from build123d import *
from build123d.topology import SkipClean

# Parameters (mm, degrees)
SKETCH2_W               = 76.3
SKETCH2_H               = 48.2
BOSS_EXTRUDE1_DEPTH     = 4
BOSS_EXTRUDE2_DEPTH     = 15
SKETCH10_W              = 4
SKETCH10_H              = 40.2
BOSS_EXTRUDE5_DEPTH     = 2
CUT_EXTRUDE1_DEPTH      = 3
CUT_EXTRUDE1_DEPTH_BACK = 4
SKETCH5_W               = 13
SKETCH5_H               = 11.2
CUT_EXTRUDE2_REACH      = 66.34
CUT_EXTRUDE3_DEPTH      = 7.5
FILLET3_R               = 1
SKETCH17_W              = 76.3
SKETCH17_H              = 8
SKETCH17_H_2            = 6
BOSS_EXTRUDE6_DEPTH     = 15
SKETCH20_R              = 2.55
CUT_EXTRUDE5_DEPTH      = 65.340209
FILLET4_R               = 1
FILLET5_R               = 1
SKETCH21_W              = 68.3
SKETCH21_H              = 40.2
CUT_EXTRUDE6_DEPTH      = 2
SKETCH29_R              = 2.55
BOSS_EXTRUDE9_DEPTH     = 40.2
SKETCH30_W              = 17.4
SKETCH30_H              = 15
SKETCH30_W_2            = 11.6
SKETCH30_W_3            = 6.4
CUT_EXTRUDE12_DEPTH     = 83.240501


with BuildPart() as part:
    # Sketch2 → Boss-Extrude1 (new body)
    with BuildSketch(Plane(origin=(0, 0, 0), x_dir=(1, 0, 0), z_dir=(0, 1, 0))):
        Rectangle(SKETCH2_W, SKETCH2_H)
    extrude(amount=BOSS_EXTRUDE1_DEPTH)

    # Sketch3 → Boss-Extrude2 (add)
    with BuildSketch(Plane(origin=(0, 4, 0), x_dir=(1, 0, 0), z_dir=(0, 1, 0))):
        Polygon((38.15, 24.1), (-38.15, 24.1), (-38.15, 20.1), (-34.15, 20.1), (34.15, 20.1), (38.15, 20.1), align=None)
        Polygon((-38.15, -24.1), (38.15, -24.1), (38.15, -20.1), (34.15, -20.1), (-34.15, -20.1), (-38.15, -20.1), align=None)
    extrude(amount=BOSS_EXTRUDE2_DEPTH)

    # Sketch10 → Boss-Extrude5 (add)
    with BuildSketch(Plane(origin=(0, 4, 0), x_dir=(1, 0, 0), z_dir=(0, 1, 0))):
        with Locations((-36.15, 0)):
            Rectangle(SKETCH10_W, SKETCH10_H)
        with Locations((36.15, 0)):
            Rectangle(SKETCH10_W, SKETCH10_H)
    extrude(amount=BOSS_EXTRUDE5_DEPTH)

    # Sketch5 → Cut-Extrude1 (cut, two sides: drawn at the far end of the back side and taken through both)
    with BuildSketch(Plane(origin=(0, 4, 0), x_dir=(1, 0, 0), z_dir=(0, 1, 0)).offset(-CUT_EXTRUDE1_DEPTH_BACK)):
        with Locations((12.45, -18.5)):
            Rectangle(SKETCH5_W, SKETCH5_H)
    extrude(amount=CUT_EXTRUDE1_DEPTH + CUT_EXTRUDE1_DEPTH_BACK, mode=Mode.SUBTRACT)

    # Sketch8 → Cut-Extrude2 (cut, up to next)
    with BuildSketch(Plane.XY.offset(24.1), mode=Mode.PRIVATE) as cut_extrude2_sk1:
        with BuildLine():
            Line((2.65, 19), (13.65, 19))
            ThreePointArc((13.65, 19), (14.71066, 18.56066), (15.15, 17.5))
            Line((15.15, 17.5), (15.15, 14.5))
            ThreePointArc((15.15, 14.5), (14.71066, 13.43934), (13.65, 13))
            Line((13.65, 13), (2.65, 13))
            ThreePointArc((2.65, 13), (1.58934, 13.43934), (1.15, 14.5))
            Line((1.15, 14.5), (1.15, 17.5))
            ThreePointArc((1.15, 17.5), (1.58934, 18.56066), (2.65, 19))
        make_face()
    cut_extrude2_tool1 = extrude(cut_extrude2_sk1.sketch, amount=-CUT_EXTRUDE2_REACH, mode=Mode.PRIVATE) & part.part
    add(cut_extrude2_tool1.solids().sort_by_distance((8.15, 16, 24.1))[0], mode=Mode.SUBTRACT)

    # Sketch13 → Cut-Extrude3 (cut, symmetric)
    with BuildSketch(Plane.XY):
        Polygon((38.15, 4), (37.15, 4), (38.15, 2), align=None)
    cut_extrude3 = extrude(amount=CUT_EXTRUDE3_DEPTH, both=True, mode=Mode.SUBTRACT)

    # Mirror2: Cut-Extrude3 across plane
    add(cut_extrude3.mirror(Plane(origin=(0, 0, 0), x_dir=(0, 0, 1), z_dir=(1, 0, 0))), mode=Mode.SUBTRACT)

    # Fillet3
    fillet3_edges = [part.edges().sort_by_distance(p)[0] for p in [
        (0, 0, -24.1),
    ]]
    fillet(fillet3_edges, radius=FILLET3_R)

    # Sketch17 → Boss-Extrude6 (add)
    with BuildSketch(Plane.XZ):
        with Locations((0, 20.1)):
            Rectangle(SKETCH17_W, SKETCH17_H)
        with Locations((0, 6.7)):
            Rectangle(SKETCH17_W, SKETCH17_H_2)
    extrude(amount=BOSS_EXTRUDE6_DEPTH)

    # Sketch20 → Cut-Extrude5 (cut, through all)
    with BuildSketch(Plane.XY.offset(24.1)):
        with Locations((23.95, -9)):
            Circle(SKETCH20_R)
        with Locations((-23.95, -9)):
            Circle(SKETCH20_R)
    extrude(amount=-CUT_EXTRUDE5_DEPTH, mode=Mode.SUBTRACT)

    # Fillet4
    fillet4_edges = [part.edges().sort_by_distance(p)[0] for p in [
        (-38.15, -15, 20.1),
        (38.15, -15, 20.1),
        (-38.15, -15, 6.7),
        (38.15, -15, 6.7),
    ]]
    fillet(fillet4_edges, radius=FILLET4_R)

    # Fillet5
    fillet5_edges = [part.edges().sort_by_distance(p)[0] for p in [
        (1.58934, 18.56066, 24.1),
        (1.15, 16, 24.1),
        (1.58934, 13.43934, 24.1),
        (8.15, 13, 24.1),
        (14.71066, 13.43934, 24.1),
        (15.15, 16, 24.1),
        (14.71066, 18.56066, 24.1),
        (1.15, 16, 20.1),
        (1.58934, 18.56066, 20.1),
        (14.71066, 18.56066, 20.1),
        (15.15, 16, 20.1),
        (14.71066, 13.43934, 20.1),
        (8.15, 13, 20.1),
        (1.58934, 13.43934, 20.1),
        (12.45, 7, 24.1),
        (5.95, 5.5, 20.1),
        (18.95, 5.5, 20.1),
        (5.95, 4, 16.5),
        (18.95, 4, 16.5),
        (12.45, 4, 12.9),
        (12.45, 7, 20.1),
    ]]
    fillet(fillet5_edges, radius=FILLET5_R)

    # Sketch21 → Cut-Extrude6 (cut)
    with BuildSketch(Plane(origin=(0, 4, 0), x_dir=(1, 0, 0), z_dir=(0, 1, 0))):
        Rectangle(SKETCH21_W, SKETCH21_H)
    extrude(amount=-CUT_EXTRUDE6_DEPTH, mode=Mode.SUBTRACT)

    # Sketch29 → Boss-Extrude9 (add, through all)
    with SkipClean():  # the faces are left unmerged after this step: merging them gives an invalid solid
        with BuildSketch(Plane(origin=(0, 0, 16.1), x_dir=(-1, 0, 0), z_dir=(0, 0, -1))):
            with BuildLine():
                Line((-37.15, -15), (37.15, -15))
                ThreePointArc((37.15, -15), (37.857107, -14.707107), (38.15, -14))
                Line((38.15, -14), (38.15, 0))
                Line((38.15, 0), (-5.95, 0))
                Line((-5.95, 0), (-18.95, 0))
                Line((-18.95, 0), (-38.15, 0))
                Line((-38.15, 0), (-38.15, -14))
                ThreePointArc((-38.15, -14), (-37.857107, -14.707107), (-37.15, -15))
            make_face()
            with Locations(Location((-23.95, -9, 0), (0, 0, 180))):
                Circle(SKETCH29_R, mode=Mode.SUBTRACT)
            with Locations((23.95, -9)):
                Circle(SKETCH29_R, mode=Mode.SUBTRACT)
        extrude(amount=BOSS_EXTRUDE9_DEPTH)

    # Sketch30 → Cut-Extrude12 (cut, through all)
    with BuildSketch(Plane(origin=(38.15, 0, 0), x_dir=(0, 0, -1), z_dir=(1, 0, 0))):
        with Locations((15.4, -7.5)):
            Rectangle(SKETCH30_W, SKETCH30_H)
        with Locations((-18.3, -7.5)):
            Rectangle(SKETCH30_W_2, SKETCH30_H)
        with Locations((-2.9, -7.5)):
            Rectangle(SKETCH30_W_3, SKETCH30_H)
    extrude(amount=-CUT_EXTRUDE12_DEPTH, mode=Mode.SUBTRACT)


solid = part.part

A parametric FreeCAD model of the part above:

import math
import FreeCAD as App
import Part
import Sketcher


def edges_at(feature, points):
    """Names of the edges that pass closest to the given points."""
    edges = feature.Shape.Edges
    near = lambda p: min(range(len(edges)), key=lambda i: edges[i].distToShape(Part.Vertex(*p))[0])
    return sorted({f"Edge{near(p) + 1}" for p in points})

doc = App.newDocument("Part")
body = doc.addObject("PartDesign::Body", "Body")

sketch1 = body.newObject("Sketcher::SketchObject", "Sketch")
sketch1.AttachmentSupport = (doc.getObject("XZ_Plane"), [""])
sketch1.MapMode = "FlatFace"
sketch1.addGeometry([
    Part.LineSegment(App.Vector(-38, -24, 0), App.Vector(-38, 24, 0)),
    Part.LineSegment(App.Vector(-38, 24, 0), App.Vector(38, 24, 0)),
    Part.LineSegment(App.Vector(38, 24, 0), App.Vector(38, -24, 0)),
    Part.LineSegment(App.Vector(38, -24, 0), App.Vector(-38, -24, 0)),
], False)
sketch1.addConstraint([
    Sketcher.Constraint("Coincident", 0, 2, 1, 1),
    Sketcher.Constraint("Coincident", 1, 2, 2, 1),
    Sketcher.Constraint("Coincident", 2, 2, 3, 1),
    Sketcher.Constraint("Coincident", 3, 2, 0, 1),
    Sketcher.Constraint("Vertical", 0),
    Sketcher.Constraint("Horizontal", 1),
    Sketcher.Constraint("Vertical", 2),
    Sketcher.Constraint("Horizontal", 3),
    Sketcher.Constraint("Symmetric", 0, 2, 2, 2, -1, 1),
    Sketcher.Constraint("DistanceX", 1, 1, 1, 2, 76.3),
    Sketcher.Constraint("DistanceY", 0, 1, 0, 2, 48.2),
])
pad1 = body.newObject("PartDesign::Pad", "Pad")
pad1.Profile = sketch1
pad1.Length = 4
pad1.Reversed = True

sketch2 = body.newObject("Sketcher::SketchObject", "Sketch001")
sketch2.AttachmentSupport = (doc.getObject("XZ_Plane"), [""])
sketch2.MapMode = "FlatFace"
sketch2.AttachmentOffset = App.Placement(App.Vector(0, 0, -4), App.Rotation())
sketch2.addGeometry([
    Part.LineSegment(App.Vector(38.1, -24.1, 0), App.Vector(-38.1, -24.1, 0)),
    Part.LineSegment(App.Vector(-38.1, -24.1, 0), App.Vector(-38.1, -20.1, 0)),
    Part.LineSegment(App.Vector(-38.1, -20.1, 0), App.Vector(38.1, -20.1, 0)),
    Part.LineSegment(App.Vector(38.1, -20.1, 0), App.Vector(38.1, -24.1, 0)),
    Part.LineSegment(App.Vector(-38.1, 24.1, 0), App.Vector(38.1, 24.1, 0)),
    Part.LineSegment(App.Vector(38.1, 24.1, 0), App.Vector(38.1, 20.1, 0)),
    Part.LineSegment(App.Vector(38.1, 20.1, 0), App.Vector(-38.1, 20.1, 0)),
    Part.LineSegment(App.Vector(-38.1, 20.1, 0), App.Vector(-38.1, 24.1, 0)),
], False)
sketch2.addConstraint([
    Sketcher.Constraint("Coincident", 0, 2, 1, 1),
    Sketcher.Constraint("Coincident", 1, 2, 2, 1),
    Sketcher.Constraint("Coincident", 2, 2, 3, 1),
    Sketcher.Constraint("Coincident", 3, 2, 0, 1),
    Sketcher.Constraint("Coincident", 4, 2, 5, 1),
    Sketcher.Constraint("Coincident", 5, 2, 6, 1),
    Sketcher.Constraint("Coincident", 6, 2, 7, 1),
    Sketcher.Constraint("Coincident", 7, 2, 4, 1),
    Sketcher.Constraint("Horizontal", 0),
    Sketcher.Constraint("Vertical", 1),
    Sketcher.Constraint("Horizontal", 2),
    Sketcher.Constraint("Vertical", 3),
    Sketcher.Constraint("Horizontal", 4),
    Sketcher.Constraint("Vertical", 5),
    Sketcher.Constraint("Horizontal", 6),
    Sketcher.Constraint("Vertical", 7),
    Sketcher.Constraint("Symmetric", 0, 2, 4, 2, -1, 1),
    Sketcher.Constraint("Symmetric", 2, 2, 6, 2, -1, 1),
    Sketcher.Constraint("Vertical", 3, 2, 4, 2),
    Sketcher.Constraint("DistanceY", 1, 1, 1, 2, 4.0),
    Sketcher.Constraint("DistanceX", 0, 2, 0, 1, 76.3),
    Sketcher.Constraint("DistanceY", 0, 2, -1, 1, 24.1),
])
pad2 = body.newObject("PartDesign::Pad", "Pad001")
pad2.Profile = sketch2
pad2.Length = 15
pad2.Reversed = True

sketch3 = body.newObject("Sketcher::SketchObject", "Sketch002")
sketch3.AttachmentSupport = (doc.getObject("XZ_Plane"), [""])
sketch3.MapMode = "FlatFace"
sketch3.AttachmentOffset = App.Placement(App.Vector(0, 0, -4), App.Rotation())
sketch3.addGeometry([
    Part.LineSegment(App.Vector(-38.1, -20.1, 0), App.Vector(-38.1, 20.1, 0)),
    Part.LineSegment(App.Vector(-38.1, 20.1, 0), App.Vector(-34.1, 20.1, 0)),
    Part.LineSegment(App.Vector(-34.1, 20.1, 0), App.Vector(-34.1, -20.1, 0)),
    Part.LineSegment(App.Vector(-34.1, -20.1, 0), App.Vector(-38.1, -20.1, 0)),
    Part.LineSegment(App.Vector(34.1, -20.1, 0), App.Vector(34.1, 20.1, 0)),
    Part.LineSegment(App.Vector(34.1, 20.1, 0), App.Vector(38.1, 20.1, 0)),
    Part.LineSegment(App.Vector(38.1, 20.1, 0), App.Vector(38.1, -20.1, 0)),
    Part.LineSegment(App.Vector(38.1, -20.1, 0), App.Vector(34.1, -20.1, 0)),
], False)
sketch3.addConstraint([
    Sketcher.Constraint("Coincident", 0, 2, 1, 1),
    Sketcher.Constraint("Coincident", 1, 2, 2, 1),
    Sketcher.Constraint("Coincident", 2, 2, 3, 1),
    Sketcher.Constraint("Coincident", 3, 2, 0, 1),
    Sketcher.Constraint("Coincident", 4, 2, 5, 1),
    Sketcher.Constraint("Coincident", 5, 2, 6, 1),
    Sketcher.Constraint("Coincident", 6, 2, 7, 1),
    Sketcher.Constraint("Coincident", 7, 2, 4, 1),
    Sketcher.Constraint("Vertical", 0),
    Sketcher.Constraint("Horizontal", 1),
    Sketcher.Constraint("Vertical", 2),
    Sketcher.Constraint("Horizontal", 3),
    Sketcher.Constraint("Vertical", 4),
    Sketcher.Constraint("Horizontal", 5),
    Sketcher.Constraint("Vertical", 6),
    Sketcher.Constraint("Horizontal", 7),
    Sketcher.Constraint("Symmetric", 2, 2, 4, 2, -1, 1),
    Sketcher.Constraint("Symmetric", 0, 2, 6, 2, -1, 1),
    Sketcher.Constraint("Horizontal", 1, 2, 4, 2),
    Sketcher.Constraint("DistanceX", 1, 1, 1, 2, 4.0),
    Sketcher.Constraint("DistanceY", 0, 1, 0, 2, 40.2),
    Sketcher.Constraint("DistanceX", 1, 2, 4, 2, 68.3),
])
pad3 = body.newObject("PartDesign::Pad", "Pad002")
pad3.Profile = sketch3
pad3.Length = 2
pad3.Reversed = True

sketch4 = body.newObject("Sketcher::SketchObject", "Sketch003")
sketch4.AttachmentSupport = (doc.getObject("XZ_Plane"), [""])
sketch4.MapMode = "FlatFace"
sketch4.AttachmentOffset = App.Placement(App.Vector(0, 0, -4), App.Rotation())
sketch4.addGeometry([
    Part.LineSegment(App.Vector(6, 13, 0), App.Vector(6, 24, 0)),
    Part.LineSegment(App.Vector(6, 24, 0), App.Vector(19, 24, 0)),
    Part.LineSegment(App.Vector(19, 24, 0), App.Vector(19, 13, 0)),
    Part.LineSegment(App.Vector(19, 13, 0), App.Vector(6, 13, 0)),
], False)
sketch4.addConstraint([
    Sketcher.Constraint("Coincident", 0, 2, 1, 1),
    Sketcher.Constraint("Coincident", 1, 2, 2, 1),
    Sketcher.Constraint("Coincident", 2, 2, 3, 1),
    Sketcher.Constraint("Coincident", 3, 2, 0, 1),
    Sketcher.Constraint("Vertical", 0),
    Sketcher.Constraint("Horizontal", 1),
    Sketcher.Constraint("Vertical", 2),
    Sketcher.Constraint("Horizontal", 3),
    Sketcher.Constraint("DistanceX", 1, 1, 1, 2, 13.0),
    Sketcher.Constraint("DistanceY", 0, 1, 0, 2, 11.2),
    Sketcher.Constraint("DistanceY", -1, 1, 0, 2, 24.1),
    Sketcher.Constraint("DistanceX", -1, 1, 0, 2, 5.95),
])
pocket1 = body.newObject("PartDesign::Pocket", "Pocket")
pocket1.Profile = sketch4
pocket1.Type = "TwoLengths"
pocket1.Length = 3
pocket1.Length2 = 4

sketch5 = body.newObject("Sketcher::SketchObject", "Sketch004")
sketch5.AttachmentSupport = (doc.getObject("XY_Plane"), [""])
sketch5.MapMode = "FlatFace"
sketch5.AttachmentOffset = App.Placement(App.Vector(0, 0, 24.1), App.Rotation())
sketch5.addGeometry([
    Part.LineSegment(App.Vector(13.7, 19, 0), App.Vector(2.6, 19, 0)),
    Part.ArcOfCircle(Part.Circle(App.Vector(2.7, 17.5, 0), App.Vector(0, 0, 1), 1.5), math.radians(90), math.radians(180)),
    Part.LineSegment(App.Vector(1.1, 17.5, 0), App.Vector(1.1, 14.5, 0)),
    Part.ArcOfCircle(Part.Circle(App.Vector(2.7, 14.5, 0), App.Vector(0, 0, 1), 1.5), math.radians(-180), math.radians(-90)),
    Part.LineSegment(App.Vector(2.6, 13, 0), App.Vector(13.7, 13, 0)),
    Part.ArcOfCircle(Part.Circle(App.Vector(13.6, 14.5, 0), App.Vector(0, 0, 1), 1.5), math.radians(-90), math.radians(0)),
    Part.LineSegment(App.Vector(15.2, 14.5, 0), App.Vector(15.2, 17.5, 0)),
    Part.ArcOfCircle(Part.Circle(App.Vector(13.6, 17.5, 0), App.Vector(0, 0, 1), 1.5), math.radians(0), math.radians(90)),
], False)
sketch5.addConstraint([
    Sketcher.Constraint("Tangent", 0, 2, 1, 1),
    Sketcher.Constraint("Tangent", 1, 2, 2, 1),
    Sketcher.Constraint("Tangent", 2, 2, 3, 1),
    Sketcher.Constraint("Tangent", 3, 2, 4, 1),
    Sketcher.Constraint("Tangent", 4, 2, 5, 1),
    Sketcher.Constraint("Tangent", 5, 2, 6, 1),
    Sketcher.Constraint("Tangent", 6, 2, 7, 1),
    Sketcher.Constraint("Tangent", 7, 2, 0, 1),
    Sketcher.Constraint("Horizontal", 0),
    Sketcher.Constraint("Vertical", 2),
    Sketcher.Constraint("Horizontal", 4),
    Sketcher.Constraint("Vertical", 6),
    Sketcher.Constraint("Equal", 1, 3),
    Sketcher.Constraint("Equal", 3, 5),
    Sketcher.Constraint("Equal", 5, 7),
    Sketcher.Constraint("Radius", 1, 1.500001),
    Sketcher.Constraint("DistanceX", 0, 2, 0, 1, 11.0),
    Sketcher.Constraint("DistanceY", 2, 2, 2, 1, 3.0),
    Sketcher.Constraint("DistanceY", -1, 1, 0, 2, 19.0),
    Sketcher.Constraint("DistanceX", -1, 1, 1, 3, 2.650001),
])
pocket2 = body.newObject("PartDesign::Pocket", "Pocket001")
pocket2.Profile = sketch5
pocket2.Type = "UpToFirst"

sketch6 = body.newObject("Sketcher::SketchObject", "Sketch005")
sketch6.AttachmentSupport = (doc.getObject("XY_Plane"), [""])
sketch6.MapMode = "FlatFace"
sketch6.addGeometry([
    Part.LineSegment(App.Vector(38.1, 4, 0), App.Vector(37.1, 4, 0)),
    Part.LineSegment(App.Vector(37.1, 4, 0), App.Vector(38.1, 2, 0)),
    Part.LineSegment(App.Vector(38.1, 2, 0), App.Vector(38.1, 4, 0)),
], False)
sketch6.addConstraint([
    Sketcher.Constraint("Coincident", 0, 2, 1, 1),
    Sketcher.Constraint("Coincident", 1, 2, 2, 1),
    Sketcher.Constraint("Coincident", 2, 2, 0, 1),
    Sketcher.Constraint("Horizontal", 0),
    Sketcher.Constraint("Vertical", 2),
    Sketcher.Constraint("DistanceX", 0, 2, 0, 1, 1.0),
    Sketcher.Constraint("DistanceY", 2, 1, 2, 2, 2.0),
    Sketcher.Constraint("DistanceY", -1, 1, 0, 2, 4.0),
    Sketcher.Constraint("DistanceX", -1, 1, 0, 2, 37.15),
])
pocket3 = body.newObject("PartDesign::Pocket", "Pocket002")
pocket3.Profile = sketch6
pocket3.Length = 15
pocket3.Midplane = True
doc.recompute()

mirrored = body.newObject("PartDesign::Mirrored", "Mirrored")
mirrored.Originals = [pocket3]
mirrored.MirrorPlane = (doc.getObject("YZ_Plane"), [""])
body.Tip = mirrored
doc.recompute()

fillet = body.newObject("PartDesign::Fillet", "Fillet")
fillet.Base = (mirrored, edges_at(mirrored, [(0, 0, -24.1)]))
fillet.Radius = 1

sketch7 = body.newObject("Sketcher::SketchObject", "Sketch006")
sketch7.AttachmentSupport = (doc.getObject("XZ_Plane"), [""])
sketch7.MapMode = "FlatFace"
sketch7.addGeometry([
    Part.LineSegment(App.Vector(-38, 24, 0), App.Vector(-38, 16, 0)),
    Part.LineSegment(App.Vector(-38, 16, 0), App.Vector(38, 16, 0)),
    Part.LineSegment(App.Vector(38, 16, 0), App.Vector(38, 24, 0)),
    Part.LineSegment(App.Vector(38, 24, 0), App.Vector(-38, 24, 0)),
    Part.LineSegment(App.Vector(-38, 10, 0), App.Vector(-38, 4, 0)),
    Part.LineSegment(App.Vector(-38, 4, 0), App.Vector(38, 4, 0)),
    Part.LineSegment(App.Vector(38, 4, 0), App.Vector(38, 10, 0)),
    Part.LineSegment(App.Vector(38, 10, 0), App.Vector(-38, 10, 0)),
], False)
sketch7.addConstraint([
    Sketcher.Constraint("Coincident", 0, 2, 1, 1),
    Sketcher.Constraint("Coincident", 1, 2, 2, 1),
    Sketcher.Constraint("Coincident", 2, 2, 3, 1),
    Sketcher.Constraint("Coincident", 3, 2, 0, 1),
    Sketcher.Constraint("Coincident", 4, 2, 5, 1),
    Sketcher.Constraint("Coincident", 5, 2, 6, 1),
    Sketcher.Constraint("Coincident", 6, 2, 7, 1),
    Sketcher.Constraint("Coincident", 7, 2, 4, 1),
    Sketcher.Constraint("Vertical", 0),
    Sketcher.Constraint("Horizontal", 1),
    Sketcher.Constraint("Vertical", 2),
    Sketcher.Constraint("Horizontal", 3),
    Sketcher.Constraint("Vertical", 4),
    Sketcher.Constraint("Horizontal", 5),
    Sketcher.Constraint("Vertical", 6),
    Sketcher.Constraint("Horizontal", 7),
    Sketcher.Constraint("Vertical", 3, 2, 4, 2),
    Sketcher.Constraint("Vertical", 2, 2, 5, 2),
    Sketcher.Constraint("DistanceY", 0, 2, 0, 1, 8.0),
    Sketcher.Constraint("DistanceY", 4, 2, 4, 1, 6.0),
    Sketcher.Constraint("DistanceX", 1, 1, 1, 2, 76.3),
    Sketcher.Constraint("DistanceY", -1, 1, 0, 2, 16.1),
    Sketcher.Constraint("DistanceY", -1, 1, 4, 2, 3.7),
    Sketcher.Constraint("DistanceX", 0, 2, -1, 1, 38.15),
])
pad4 = body.newObject("PartDesign::Pad", "Pad003")
pad4.Profile = sketch7
pad4.Length = 15

sketch8 = body.newObject("Sketcher::SketchObject", "Sketch007")
sketch8.AttachmentSupport = (doc.getObject("XY_Plane"), [""])
sketch8.MapMode = "FlatFace"
sketch8.AttachmentOffset = App.Placement(App.Vector(0, 0, 24.1), App.Rotation())
sketch8.addGeometry([
    Part.Circle(App.Vector(23.9, -9, 0), App.Vector(0, 0, 1), 2.5),
    Part.Circle(App.Vector(-23.9, -9, 0), App.Vector(0, 0, 1), 2.5),
], False)
sketch8.addConstraint([
    Sketcher.Constraint("Equal", 0, 1),
    Sketcher.Constraint("Symmetric", 0, 3, 1, 3, -2),
    Sketcher.Constraint("Diameter", 0, 5.1),
    Sketcher.Constraint("DistanceY", 0, 3, -1, 1, 9.0),
    Sketcher.Constraint("DistanceX", 1, 3, 0, 3, 47.9),
])
pocket4 = body.newObject("PartDesign::Pocket", "Pocket003")
pocket4.Profile = sketch8
pocket4.Type = "ThroughAll"
doc.recompute()

fillet2 = body.newObject("PartDesign::Fillet", "Fillet001")
fillet2.Base = (pocket4, edges_at(pocket4, [
    (-38.15, -15, 20.1),
    (38.15, -15, 20.1),
    (-38.15, -15, 6.7),
    (38.15, -15, 6.7),
]))
fillet2.Radius = 1
doc.recompute()

fillet3 = body.newObject("PartDesign::Fillet", "Fillet002")
fillet3.Base = (fillet2, edges_at(fillet2, [
    (1.589, 18.561, 24.1),
    (1.15, 16, 24.1),
    (1.589, 13.439, 24.1),
    (8.15, 13, 24.1),
    (14.711, 13.439, 24.1),
    (15.15, 16, 24.1),
    (14.711, 18.561, 24.1),
    (1.15, 16, 20.1),
    (1.589, 18.561, 20.1),
    (14.711, 18.561, 20.1),
    (15.15, 16, 20.1),
    (14.711, 13.439, 20.1),
    (8.15, 13, 20.1),
    (1.589, 13.439, 20.1),
    (12.45, 7, 24.1),
    (5.95, 5.5, 20.1),
    (18.95, 5.5, 20.1),
    (5.95, 4, 16.5),
    (18.95, 4, 16.5),
    (12.45, 4, 12.9),
    (12.45, 7, 20.1),
]))
fillet3.Radius = 1

sketch9 = body.newObject("Sketcher::SketchObject", "Sketch008")
sketch9.AttachmentSupport = (doc.getObject("XZ_Plane"), [""])
sketch9.MapMode = "FlatFace"
sketch9.AttachmentOffset = App.Placement(App.Vector(0, 0, -4), App.Rotation())
sketch9.addGeometry([
    Part.LineSegment(App.Vector(-34, -20, 0), App.Vector(-34, 20, 0)),
    Part.LineSegment(App.Vector(-34, 20, 0), App.Vector(34, 20, 0)),
    Part.LineSegment(App.Vector(34, 20, 0), App.Vector(34, -20, 0)),
    Part.LineSegment(App.Vector(34, -20, 0), App.Vector(-34, -20, 0)),
], False)
sketch9.addConstraint([
    Sketcher.Constraint("Coincident", 0, 2, 1, 1),
    Sketcher.Constraint("Coincident", 1, 2, 2, 1),
    Sketcher.Constraint("Coincident", 2, 2, 3, 1),
    Sketcher.Constraint("Coincident", 3, 2, 0, 1),
    Sketcher.Constraint("Vertical", 0),
    Sketcher.Constraint("Horizontal", 1),
    Sketcher.Constraint("Vertical", 2),
    Sketcher.Constraint("Horizontal", 3),
    Sketcher.Constraint("Symmetric", 0, 2, 2, 2, -1, 1),
    Sketcher.Constraint("DistanceX", 1, 1, 1, 2, 68.3),
    Sketcher.Constraint("DistanceY", 0, 1, 0, 2, 40.2),
])
pocket5 = body.newObject("PartDesign::Pocket", "Pocket004")
pocket5.Profile = sketch9
pocket5.Length = 2
pocket5.Reversed = True

sketch10 = body.newObject("Sketcher::SketchObject", "Sketch009")
sketch10.AttachmentSupport = (doc.getObject("XY_Plane"), [""])
sketch10.MapMode = "FlatFace"
sketch10.AttachmentOffset = App.Placement(App.Vector(0, 0, 16.1), App.Rotation())
sketch10.addGeometry([
    Part.LineSegment(App.Vector(37.1, -15, 0), App.Vector(-37.1, -15, 0)),
    Part.ArcOfCircle(Part.Circle(App.Vector(-37.2, -14, 0), App.Vector(0, 0, 1), 1), math.radians(180), math.radians(270)),
    Part.LineSegment(App.Vector(-38.1, -14, 0), App.Vector(-38.1, 0, 0)),
    Part.LineSegment(App.Vector(-38.1, 0, 0), App.Vector(38.1, 0, 0)),
    Part.LineSegment(App.Vector(38.1, 0, 0), App.Vector(38.1, -14, 0)),
    Part.ArcOfCircle(Part.Circle(App.Vector(37.2, -14, 0), App.Vector(0, 0, 1), 1), math.radians(-90), math.radians(0)),
    Part.Circle(App.Vector(23.9, -9, 0), App.Vector(0, 0, 1), 2.5),
    Part.Circle(App.Vector(-23.9, -9, 0), App.Vector(0, 0, 1), 2.5),
], False)
sketch10.addConstraint([
    Sketcher.Constraint("Tangent", 0, 2, 1, 2),
    Sketcher.Constraint("Tangent", 1, 1, 2, 1),
    Sketcher.Constraint("Coincident", 2, 2, 3, 1),
    Sketcher.Constraint("Coincident", 3, 2, 4, 1),
    Sketcher.Constraint("Tangent", 4, 2, 5, 2),
    Sketcher.Constraint("Tangent", 5, 1, 0, 1),
    Sketcher.Constraint("Horizontal", 0),
    Sketcher.Constraint("Vertical", 2),
    Sketcher.Constraint("Horizontal", 3),
    Sketcher.Constraint("Vertical", 4),
    Sketcher.Constraint("Equal", 1, 5),
    Sketcher.Constraint("Equal", 6, 7),
    Sketcher.Constraint("Symmetric", 2, 2, 3, 2, -1, 1),
    Sketcher.Constraint("Symmetric", 6, 3, 7, 3, -2),
    Sketcher.Constraint("Radius", 1, 0.999999),
    Sketcher.Constraint("Diameter", 6, 5.1),
    Sketcher.Constraint("DistanceY", 2, 1, 2, 2, 14.0),
    Sketcher.Constraint("DistanceX", 0, 2, 0, 1, 74.3),
    Sketcher.Constraint("DistanceY", 6, 3, -1, 1, 9.0),
    Sketcher.Constraint("DistanceX", 6, 3, 5, 3, 13.200001),
])
pad5 = body.newObject("PartDesign::Pad", "Pad004")
pad5.Profile = sketch10
pad5.Length = 40.2
pad5.Reversed = True

sketch11 = body.newObject("Sketcher::SketchObject", "Sketch010")
sketch11.AttachmentSupport = (doc.getObject("YZ_Plane"), [""])
sketch11.MapMode = "FlatFace"
sketch11.AttachmentOffset = App.Placement(App.Vector(0, 0, 38.15), App.Rotation())
sketch11.addGeometry([
    Part.LineSegment(App.Vector(0, -7, 0), App.Vector(-15, -7, 0)),
    Part.LineSegment(App.Vector(-15, -7, 0), App.Vector(-15, -24, 0)),
    Part.LineSegment(App.Vector(-15, -24, 0), App.Vector(0, -24, 0)),
    Part.LineSegment(App.Vector(0, -24, 0), App.Vector(0, -7, 0)),
    Part.LineSegment(App.Vector(0, 24, 0), App.Vector(-15, 24, 0)),
    Part.LineSegment(App.Vector(-15, 24, 0), App.Vector(-15, 12, 0)),
    Part.LineSegment(App.Vector(-15, 12, 0), App.Vector(0, 12, 0)),
    Part.LineSegment(App.Vector(0, 12, 0), App.Vector(0, 24, 0)),
    Part.LineSegment(App.Vector(0, 6, 0), App.Vector(-15, 6, 0)),
    Part.LineSegment(App.Vector(-15, 6, 0), App.Vector(-15, 0, 0)),
    Part.LineSegment(App.Vector(-15, 0, 0), App.Vector(0, 0, 0)),
    Part.LineSegment(App.Vector(0, 0, 0), App.Vector(0, 6, 0)),
], False)
sketch11.addConstraint([
    Sketcher.Constraint("Coincident", 0, 2, 1, 1),
    Sketcher.Constraint("Coincident", 1, 2, 2, 1),
    Sketcher.Constraint("Coincident", 2, 2, 3, 1),
    Sketcher.Constraint("Coincident", 3, 2, 0, 1),
    Sketcher.Constraint("Coincident", 4, 2, 5, 1),
    Sketcher.Constraint("Coincident", 5, 2, 6, 1),
    Sketcher.Constraint("Coincident", 6, 2, 7, 1),
    Sketcher.Constraint("Coincident", 7, 2, 4, 1),
    Sketcher.Constraint("Coincident", 8, 2, 9, 1),
    Sketcher.Constraint("Coincident", 9, 2, 10, 1),
    Sketcher.Constraint("Coincident", 10, 2, 11, 1),
    Sketcher.Constraint("Coincident", 11, 2, 8, 1),
    Sketcher.Constraint("Horizontal", 0),
    Sketcher.Constraint("Vertical", 1),
    Sketcher.Constraint("Horizontal", 2),
    Sketcher.Constraint("Vertical", 3),
    Sketcher.Constraint("Horizontal", 4),
    Sketcher.Constraint("Vertical", 5),
    Sketcher.Constraint("Horizontal", 6),
    Sketcher.Constraint("Vertical", 7),
    Sketcher.Constraint("Horizontal", 8),
    Sketcher.Constraint("Vertical", 9),
    Sketcher.Constraint("Horizontal", 10),
    Sketcher.Constraint("Vertical", 11),
    Sketcher.Constraint("Symmetric", 2, 2, 7, 2, -1, 1),
    Sketcher.Constraint("PointOnObject", 2, 2, -2),
    Sketcher.Constraint("PointOnObject", 10, 2, -2),
    Sketcher.Constraint("Vertical", 1, 2, 4, 2),
    Sketcher.Constraint("Vertical", 5, 2, 8, 2),
    Sketcher.Constraint("DistanceX", 0, 2, 0, 1, 15.0),
    Sketcher.Constraint("DistanceY", 1, 2, 1, 1, 17.4),
    Sketcher.Constraint("DistanceY", 5, 2, 5, 1, 11.6),
    Sketcher.Constraint("DistanceY", 9, 2, 9, 1, 6.4),
    Sketcher.Constraint("DistanceY", 8, 2, 4, 2, 18.0),
    Sketcher.Constraint("DistanceY", 0, 2, -1, 1, 6.7),
])
pocket6 = body.newObject("PartDesign::Pocket", "Pocket005")
pocket6.Profile = sketch11
pocket6.Type = "ThroughAll"

doc.recompute()
